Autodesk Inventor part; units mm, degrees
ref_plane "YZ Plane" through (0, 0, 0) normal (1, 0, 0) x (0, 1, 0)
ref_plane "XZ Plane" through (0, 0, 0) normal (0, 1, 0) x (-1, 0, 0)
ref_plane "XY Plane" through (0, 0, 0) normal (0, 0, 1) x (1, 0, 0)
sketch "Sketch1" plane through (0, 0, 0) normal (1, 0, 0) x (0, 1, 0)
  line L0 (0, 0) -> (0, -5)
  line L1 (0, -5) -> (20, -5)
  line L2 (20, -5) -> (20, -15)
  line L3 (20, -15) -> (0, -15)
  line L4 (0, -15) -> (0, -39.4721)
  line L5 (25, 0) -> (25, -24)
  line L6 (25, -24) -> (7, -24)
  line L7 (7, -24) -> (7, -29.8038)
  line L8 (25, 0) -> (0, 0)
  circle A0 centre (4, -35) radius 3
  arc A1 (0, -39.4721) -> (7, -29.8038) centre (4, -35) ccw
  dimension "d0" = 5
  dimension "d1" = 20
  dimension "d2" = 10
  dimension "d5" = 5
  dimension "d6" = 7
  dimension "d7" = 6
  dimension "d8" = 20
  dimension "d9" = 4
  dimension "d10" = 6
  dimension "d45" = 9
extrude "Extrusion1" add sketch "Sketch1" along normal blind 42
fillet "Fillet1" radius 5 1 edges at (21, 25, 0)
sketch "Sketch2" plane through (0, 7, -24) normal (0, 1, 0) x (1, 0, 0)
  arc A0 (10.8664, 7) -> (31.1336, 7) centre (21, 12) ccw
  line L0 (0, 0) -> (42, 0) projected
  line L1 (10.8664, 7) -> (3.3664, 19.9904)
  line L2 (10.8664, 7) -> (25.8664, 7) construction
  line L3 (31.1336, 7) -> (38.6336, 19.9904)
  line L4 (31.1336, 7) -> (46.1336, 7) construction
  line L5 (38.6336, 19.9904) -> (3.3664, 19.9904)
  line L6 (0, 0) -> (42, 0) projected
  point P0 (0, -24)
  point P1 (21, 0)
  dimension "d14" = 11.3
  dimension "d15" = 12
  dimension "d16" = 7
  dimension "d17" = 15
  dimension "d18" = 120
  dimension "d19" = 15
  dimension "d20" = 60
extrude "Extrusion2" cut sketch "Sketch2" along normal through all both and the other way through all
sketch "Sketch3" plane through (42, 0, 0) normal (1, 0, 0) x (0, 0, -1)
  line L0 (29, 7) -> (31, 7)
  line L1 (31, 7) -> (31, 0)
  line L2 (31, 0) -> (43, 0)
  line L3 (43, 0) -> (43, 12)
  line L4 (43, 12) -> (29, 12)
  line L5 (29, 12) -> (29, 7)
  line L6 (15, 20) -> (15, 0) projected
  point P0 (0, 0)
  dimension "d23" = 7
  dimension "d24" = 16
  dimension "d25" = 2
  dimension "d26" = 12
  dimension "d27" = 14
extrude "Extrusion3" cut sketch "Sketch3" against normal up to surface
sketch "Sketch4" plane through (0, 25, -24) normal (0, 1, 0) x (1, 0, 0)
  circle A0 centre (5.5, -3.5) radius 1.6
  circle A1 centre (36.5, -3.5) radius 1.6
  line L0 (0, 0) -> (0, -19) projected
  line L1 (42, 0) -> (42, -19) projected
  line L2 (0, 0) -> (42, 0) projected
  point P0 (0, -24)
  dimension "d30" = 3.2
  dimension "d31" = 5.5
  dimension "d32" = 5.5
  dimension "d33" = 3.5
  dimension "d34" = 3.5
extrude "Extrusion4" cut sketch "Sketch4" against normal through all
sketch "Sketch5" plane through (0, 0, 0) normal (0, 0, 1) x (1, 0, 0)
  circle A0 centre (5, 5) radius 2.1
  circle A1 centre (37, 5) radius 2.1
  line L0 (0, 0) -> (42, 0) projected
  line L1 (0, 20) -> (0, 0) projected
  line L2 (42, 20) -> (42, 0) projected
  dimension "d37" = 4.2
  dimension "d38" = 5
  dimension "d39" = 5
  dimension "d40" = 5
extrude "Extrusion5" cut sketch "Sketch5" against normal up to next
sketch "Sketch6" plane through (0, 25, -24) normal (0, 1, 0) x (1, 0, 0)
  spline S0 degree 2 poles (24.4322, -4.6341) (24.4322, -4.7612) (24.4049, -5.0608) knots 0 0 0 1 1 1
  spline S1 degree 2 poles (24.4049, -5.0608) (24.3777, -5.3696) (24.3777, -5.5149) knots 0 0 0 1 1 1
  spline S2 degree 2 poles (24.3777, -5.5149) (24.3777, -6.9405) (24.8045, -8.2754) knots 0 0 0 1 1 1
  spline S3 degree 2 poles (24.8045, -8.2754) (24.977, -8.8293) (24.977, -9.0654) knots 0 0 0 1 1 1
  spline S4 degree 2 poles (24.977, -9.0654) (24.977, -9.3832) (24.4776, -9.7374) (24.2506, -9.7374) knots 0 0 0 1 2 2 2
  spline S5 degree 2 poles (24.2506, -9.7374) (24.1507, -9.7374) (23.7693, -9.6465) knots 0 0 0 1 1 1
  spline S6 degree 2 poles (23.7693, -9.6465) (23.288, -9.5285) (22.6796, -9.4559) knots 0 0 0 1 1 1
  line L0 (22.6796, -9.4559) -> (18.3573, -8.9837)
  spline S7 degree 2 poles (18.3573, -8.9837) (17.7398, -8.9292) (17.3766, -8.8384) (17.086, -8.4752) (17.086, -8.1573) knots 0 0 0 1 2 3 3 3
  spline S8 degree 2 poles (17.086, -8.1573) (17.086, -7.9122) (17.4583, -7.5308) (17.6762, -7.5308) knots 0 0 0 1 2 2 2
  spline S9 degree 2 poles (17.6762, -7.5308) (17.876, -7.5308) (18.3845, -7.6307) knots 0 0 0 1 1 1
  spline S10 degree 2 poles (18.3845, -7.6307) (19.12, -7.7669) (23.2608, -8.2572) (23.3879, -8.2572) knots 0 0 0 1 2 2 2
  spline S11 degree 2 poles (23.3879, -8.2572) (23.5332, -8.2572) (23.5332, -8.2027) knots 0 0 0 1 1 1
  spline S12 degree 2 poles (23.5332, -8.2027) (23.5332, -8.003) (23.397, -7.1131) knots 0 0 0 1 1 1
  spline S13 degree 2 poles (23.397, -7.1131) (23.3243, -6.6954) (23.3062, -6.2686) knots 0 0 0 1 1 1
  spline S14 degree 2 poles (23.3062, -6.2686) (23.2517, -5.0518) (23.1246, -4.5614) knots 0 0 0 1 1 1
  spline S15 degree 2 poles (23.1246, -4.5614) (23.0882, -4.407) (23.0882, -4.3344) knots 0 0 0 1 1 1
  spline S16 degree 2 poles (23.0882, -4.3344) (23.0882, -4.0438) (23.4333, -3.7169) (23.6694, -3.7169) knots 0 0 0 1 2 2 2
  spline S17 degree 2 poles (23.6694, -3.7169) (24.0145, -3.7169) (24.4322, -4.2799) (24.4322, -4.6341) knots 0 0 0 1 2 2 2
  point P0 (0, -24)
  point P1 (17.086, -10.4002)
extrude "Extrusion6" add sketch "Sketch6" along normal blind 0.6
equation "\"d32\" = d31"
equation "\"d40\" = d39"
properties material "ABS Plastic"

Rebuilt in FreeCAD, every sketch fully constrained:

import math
import FreeCAD as App
import Part
import Sketcher
Q = App.Units.Quantity


def edges_at(feature, points):
    """Names of the edges that pass closest to the given points."""
    edges = feature.Shape.Edges
    near = lambda p: min(range(len(edges)), key=lambda i: edges[i].distToShape(Part.Vertex(*p))[0])
    return sorted({f"Edge{near(p) + 1}" for p in points})


def add_polygon(sketch, points):
    """Adds a closed chain of lines whose ends are joined by coincident constraints."""
    first, n = sketch.GeometryCount, len(points)
    for a, b in zip(points, points[1:] + points[:1]):
        sketch.addGeometry(Part.LineSegment(App.Vector(*a, 0), App.Vector(*b, 0)), False)
    for i in range(n):
        sketch.addConstraint(Sketcher.Constraint("Coincident", first + i, 2, first + (i + 1) % n, 1))

doc = App.newDocument("Part")
body = doc.addObject("PartDesign::Body", "Body")

sketch1 = body.newObject("Sketcher::SketchObject", "Sketch")
sketch1.AttachmentSupport = (doc.getObject("YZ_Plane"), [""])
sketch1.MapMode = "FlatFace"
sketch1.addGeometry([
    Part.LineSegment(App.Vector(25, 0, 0), App.Vector(0, 0, 0)),
    Part.LineSegment(App.Vector(0, 0, 0), App.Vector(0, -5, 0)),
    Part.LineSegment(App.Vector(0, -5, 0), App.Vector(20, -5, 0)),
    Part.LineSegment(App.Vector(20, -5, 0), App.Vector(20, -15, 0)),
    Part.LineSegment(App.Vector(20, -15, 0), App.Vector(0, -15, 0)),
    Part.LineSegment(App.Vector(0, -15, 0), App.Vector(0, -39.5, 0)),
    Part.ArcOfCircle(Part.Circle(App.Vector(4, -35, 0), App.Vector(0, 0, 1), 6), math.radians(-132), math.radians(60)),
    Part.LineSegment(App.Vector(7, -29.8, 0), App.Vector(7, -24, 0)),
    Part.LineSegment(App.Vector(7, -24, 0), App.Vector(25, -24, 0)),
    Part.LineSegment(App.Vector(25, -24, 0), App.Vector(25, 0, 0)),
    Part.Circle(App.Vector(4, -35, 0), App.Vector(0, 0, 1), 3),
], False)
sketch1.addConstraint([
    Sketcher.Constraint("Coincident", 0, 2, 1, 1),
    Sketcher.Constraint("Coincident", 1, 2, 2, 1),
    Sketcher.Constraint("Coincident", 2, 2, 3, 1),
    Sketcher.Constraint("Coincident", 3, 2, 4, 1),
    Sketcher.Constraint("Coincident", 4, 2, 5, 1),
    Sketcher.Constraint("Coincident", 5, 2, 6, 1),
    Sketcher.Constraint("Coincident", 6, 2, 7, 1),
    Sketcher.Constraint("Coincident", 7, 2, 8, 1),
    Sketcher.Constraint("Coincident", 8, 2, 9, 1),
    Sketcher.Constraint("Coincident", 9, 2, 0, 1),
    Sketcher.Constraint("Horizontal", 0),
    Sketcher.Constraint("Vertical", 1),
    Sketcher.Constraint("Horizontal", 2),
    Sketcher.Constraint("Vertical", 3),
    Sketcher.Constraint("Horizontal", 4),
    Sketcher.Constraint("Vertical", 5),
    Sketcher.Constraint("Vertical", 7),
    Sketcher.Constraint("Horizontal", 8),
    Sketcher.Constraint("Vertical", 9),
    Sketcher.Constraint("Coincident", 0, 2, -1, 1),
    Sketcher.Constraint("Coincident", 10, 3, 6, 3),
    Sketcher.Constraint("PointOnObject", 4, 2, -2),
    Sketcher.Constraint("Diameter", 10, Q("6 mm")),
    Sketcher.Constraint("Radius", 6, Q("6 mm")),
    Sketcher.Constraint("DistanceX", 2, 1, 2, 2, Q("20 mm")),
    Sketcher.Constraint("DistanceY", 1, 2, 1, 1, Q("5 mm")),
    Sketcher.Constraint("DistanceY", 3, 2, 3, 1, Q("10 mm")),
    Sketcher.Constraint("DistanceX", -1, 1, 6, 3, Q("4 mm")),
    Sketcher.Constraint("DistanceX", -1, 1, 6, 2, Q("7 mm")),
    Sketcher.Constraint("DistanceY", 6, 3, 3, 2, Q("20 mm")),
    Sketcher.Constraint("DistanceY", 7, 2, 4, 2, Q("9 mm")),
    Sketcher.Constraint("DistanceX", 3, 2, 8, 2, Q("5 mm")),
])
pad1 = body.newObject("PartDesign::Pad", "Pad")
pad1.Profile = sketch1
pad1.Length = 42
doc.recompute()

fillet = body.newObject("PartDesign::Fillet", "Fillet")
fillet.Base = (pad1, edges_at(pad1, [(21, 25, 0)]))
fillet.Radius = 5

sketch2 = body.newObject("Sketcher::SketchObject", "Sketch001")
sketch2.AttachmentSupport = (doc.getObject("XZ_Plane"), [""])
sketch2.MapMode = "FlatFace"
sketch2.AttachmentOffset = App.Placement(App.Vector(0, 0, -7), App.Rotation())
sketch2.addGeometry([
    Part.LineSegment(App.Vector(3, -44, 0), App.Vector(11, -31, 0)),
    Part.ArcOfCircle(Part.Circle(App.Vector(21, -36, 0), App.Vector(0, 0, 1), 11), math.radians(26), math.radians(154)),
    Part.LineSegment(App.Vector(31, -31, 0), App.Vector(39, -44, 0)),
    Part.LineSegment(App.Vector(39, -44, 0), App.Vector(3, -44, 0)),
], False)
sketch2.addConstraint([
    Sketcher.Constraint("Coincident", 0, 2, 1, 2),
    Sketcher.Constraint("Coincident", 1, 1, 2, 1),
    Sketcher.Constraint("Coincident", 2, 2, 3, 1),
    Sketcher.Constraint("Coincident", 3, 2, 0, 1),
    Sketcher.Constraint("Horizontal", 3),
    Sketcher.Constraint("Horizontal", 0, 2, 1, 1),
    Sketcher.Constraint("Equal", 0, 2),
    Sketcher.Constraint("Radius", 1, Q("11.3 mm")),
    Sketcher.Constraint("Angle", 0, Q("60 deg")),
    Sketcher.Constraint("Distance", 0, Q("15 mm")),
    Sketcher.Constraint("DistanceX", -1, 1, 1, 3, Q("21 mm")),
    Sketcher.Constraint("DistanceY", 1, 3, -1, 1, Q("36 mm")),
    Sketcher.Constraint("DistanceY", 0, 2, -1, 1, Q("31 mm")),
])
pocket1 = body.newObject("PartDesign::Pocket", "Pocket")
pocket1.Profile = sketch2
pocket1.Type = "ThroughAll"
pocket1.Midplane = True

sketch3 = body.newObject("Sketcher::SketchObject", "Sketch002")
sketch3.AttachmentSupport = (doc.getObject("YZ_Plane"), [""])
sketch3.MapMode = "FlatFace"
sketch3.AttachmentOffset = App.Placement(App.Vector(0, 0, 42), App.Rotation())
add_polygon(sketch3, [(12, -29), (7, -29), (7, -31), (0, -31), (0, -43), (12, -43)])
sketch3.addConstraint([
    Sketcher.Constraint("Horizontal", 0),
    Sketcher.Constraint("Vertical", 1),
    Sketcher.Constraint("Horizontal", 2),
    Sketcher.Constraint("Vertical", 3),
    Sketcher.Constraint("Horizontal", 4),
    Sketcher.Constraint("Vertical", 5),
    Sketcher.Constraint("PointOnObject", 2, 2, -2),
    Sketcher.Constraint("Equal", 4, 3),
    Sketcher.Constraint("DistanceX", 2, 2, 2, 1, Q("7 mm")),
    Sketcher.Constraint("DistanceX", 4, 1, 4, 2, Q("12 mm")),
    Sketcher.Constraint("DistanceY", 1, 2, 1, 1, Q("2 mm")),
    Sketcher.Constraint("DistanceY", 0, 2, -1, 1, Q("29 mm")),
])
pocket2 = body.newObject("PartDesign::Pocket", "Pocket001")
pocket2.Profile = sketch3
pocket2.Length = 11.5503

sketch4 = body.newObject("Sketcher::SketchObject", "Sketch003")
sketch4.AttachmentSupport = (doc.getObject("XZ_Plane"), [""])
sketch4.MapMode = "FlatFace"
sketch4.AttachmentOffset = App.Placement(App.Vector(0, 0, -25), App.Rotation())
sketch4.addGeometry([
    Part.Circle(App.Vector(5.5, -20.5, 0), App.Vector(0, 0, 1), 1.6),
    Part.Circle(App.Vector(36.5, -20.5, 0), App.Vector(0, 0, 1), 1.6),
], False)
sketch4.addConstraint([
    Sketcher.Constraint("Equal", 0, 1),
    Sketcher.Constraint("Horizontal", 0, 3, 1, 3),
    Sketcher.Constraint("Diameter", 0, Q("3.2 mm")),
    Sketcher.Constraint("DistanceX", -1, 1, 0, 3, Q("5.5 mm")),
    Sketcher.Constraint("DistanceX", 0, 3, 1, 3, Q("31 mm")),
    Sketcher.Constraint("DistanceY", 0, 3, -1, 1, Q("20.5 mm")),
])
pocket3 = body.newObject("PartDesign::Pocket", "Pocket002")
pocket3.Profile = sketch4
pocket3.Type = "ThroughAll"
pocket3.Reversed = True

sketch5 = body.newObject("Sketcher::SketchObject", "Sketch004")
sketch5.AttachmentSupport = (doc.getObject("XY_Plane"), [""])
sketch5.MapMode = "FlatFace"
sketch5.addGeometry([
    Part.Circle(App.Vector(5, 5, 0), App.Vector(0, 0, 1), 2.1),
    Part.Circle(App.Vector(37, 5, 0), App.Vector(0, 0, 1), 2.1),
], False)
sketch5.addConstraint([
    Sketcher.Constraint("Equal", 0, 1),
    Sketcher.Constraint("Horizontal", 0, 3, 1, 3),
    Sketcher.Constraint("Diameter", 0, Q("4.2 mm")),
    Sketcher.Constraint("DistanceX", -1, 1, 0, 3, Q("5 mm")),
    Sketcher.Constraint("DistanceY", -1, 1, 0, 3, Q("5 mm")),
    Sketcher.Constraint("DistanceX", -1, 1, 1, 3, Q("37 mm")),
])
pocket4 = body.newObject("PartDesign::Pocket", "Pocket003")
pocket4.Profile = sketch5
pocket4.Type = "UpToFirst"

sketch6 = body.newObject("Sketcher::SketchObject", "Sketch005")
sketch6.AttachmentSupport = (doc.getObject("XZ_Plane"), [""])
sketch6.MapMode = "FlatFace"
sketch6.AttachmentOffset = App.Placement(App.Vector(0, 0, -25), App.Rotation())
sketch6.addGeometry([
    Part.BSplineCurve([App.Vector(24.4322, -19.3659, 0), App.Vector(24.4322, -19.2388, 0), App.Vector(24.4049, -18.9392, 0)], [3, 3], [0, 1], False, 2, [1, 1, 1], False),
    Part.BSplineCurve([App.Vector(23.6694, -20.2831, 0), App.Vector(24.0145, -20.2831, 0), App.Vector(24.4322, -19.7201, 0), App.Vector(24.4322, -19.3659, 0)], [3, 1, 3], [0, 1, 2], False, 2, [1, 1, 1, 1], False),
    Part.BSplineCurve([App.Vector(23.0882, -19.6656, 0), App.Vector(23.0882, -19.9562, 0), App.Vector(23.4333, -20.2831, 0), App.Vector(23.6694, -20.2831, 0)], [3, 1, 3], [0, 1, 2], False, 2, [1, 1, 1, 1], False),
    Part.BSplineCurve([App.Vector(23.1246, -19.4386, 0), App.Vector(23.0882, -19.593, 0), App.Vector(23.0882, -19.6656, 0)], [3, 3], [0, 1], False, 2, [1, 1, 1], False),
    Part.BSplineCurve([App.Vector(23.3062, -17.7314, 0), App.Vector(23.2517, -18.9482, 0), App.Vector(23.1246, -19.4386, 0)], [3, 3], [0, 1], False, 2, [1, 1, 1], False),
    Part.BSplineCurve([App.Vector(23.397, -16.8869, 0), App.Vector(23.3243, -17.3046, 0), App.Vector(23.3062, -17.7314, 0)], [3, 3], [0, 1], False, 2, [1, 1, 1], False),
    Part.BSplineCurve([App.Vector(23.5332, -15.7973, 0), App.Vector(23.5332, -15.997, 0), App.Vector(23.397, -16.8869, 0)], [3, 3], [0, 1], False, 2, [1, 1, 1], False),
    Part.BSplineCurve([App.Vector(23.3879, -15.7428, 0), App.Vector(23.5332, -15.7428, 0), App.Vector(23.5332, -15.7973, 0)], [3, 3], [0, 1], False, 2, [1, 1, 1], False),
    Part.BSplineCurve([App.Vector(18.3845, -16.3693, 0), App.Vector(19.12, -16.2331, 0), App.Vector(23.2608, -15.7428, 0), App.Vector(23.3879, -15.7428, 0)], [3, 1, 3], [0, 1, 2], False, 2, [1, 1, 1, 1], False),
    Part.BSplineCurve([App.Vector(17.6762, -16.4692, 0), App.Vector(17.876, -16.4692, 0), App.Vector(18.3845, -16.3693, 0)], [3, 3], [0, 1], False, 2, [1, 1, 1], False),
    Part.BSplineCurve([App.Vector(17.086, -15.8427, 0), App.Vector(17.086, -16.0878, 0), App.Vector(17.4583, -16.4692, 0), App.Vector(17.6762, -16.4692, 0)], [3, 1, 3], [0, 1, 2], False, 2, [1, 1, 1, 1], False),
    Part.BSplineCurve([App.Vector(18.3573, -15.0163, 0), App.Vector(17.7398, -15.0708, 0), App.Vector(17.3766, -15.1616, 0), App.Vector(17.086, -15.5248, 0), App.Vector(17.086, -15.8427, 0)], [3, 1, 1, 3], [0, 1, 2, 3], False, 2, [1, 1, 1, 1, 1], False),
    Part.LineSegment(App.Vector(18.3573, -15.0163, 0), App.Vector(22.6796, -14.5441, 0)),
    Part.BSplineCurve([App.Vector(23.7693, -14.3535, 0), App.Vector(23.288, -14.4715, 0), App.Vector(22.6796, -14.5441, 0)], [3, 3], [0, 1], False, 2, [1, 1, 1], False),
    Part.BSplineCurve([App.Vector(24.2506, -14.2626, 0), App.Vector(24.1507, -14.2626, 0), App.Vector(23.7693, -14.3535, 0)], [3, 3], [0, 1], False, 2, [1, 1, 1], False),
    Part.BSplineCurve([App.Vector(24.977, -14.9346, 0), App.Vector(24.977, -14.6168, 0), App.Vector(24.4776, -14.2626, 0), App.Vector(24.2506, -14.2626, 0)], [3, 1, 3], [0, 1, 2], False, 2, [1, 1, 1, 1], False),
    Part.BSplineCurve([App.Vector(24.8045, -15.7246, 0), App.Vector(24.977, -15.1707, 0), App.Vector(24.977, -14.9346, 0)], [3, 3], [0, 1], False, 2, [1, 1, 1], False),
    Part.BSplineCurve([App.Vector(24.3777, -18.4851, 0), App.Vector(24.3777, -17.0595, 0), App.Vector(24.8045, -15.7246, 0)], [3, 3], [0, 1], False, 2, [1, 1, 1], False),
    Part.BSplineCurve([App.Vector(24.4049, -18.9392, 0), App.Vector(24.3777, -18.6304, 0), App.Vector(24.3777, -18.4851, 0)], [3, 3], [0, 1], False, 2, [1, 1, 1], False),
], False)
sketch6.addConstraint([
    Sketcher.Constraint("Block", 0),
    Sketcher.Constraint("Block", 1),
    Sketcher.Constraint("Block", 2),
    Sketcher.Constraint("Block", 3),
    Sketcher.Constraint("Block", 4),
    Sketcher.Constraint("Block", 5),
    Sketcher.Constraint("Block", 6),
    Sketcher.Constraint("Block", 7),
    Sketcher.Constraint("Block", 8),
    Sketcher.Constraint("Block", 9),
    Sketcher.Constraint("Block", 10),
    Sketcher.Constraint("Block", 11),
    Sketcher.Constraint("Block", 13),
    Sketcher.Constraint("Block", 14),
    Sketcher.Constraint("Block", 15),
    Sketcher.Constraint("Block", 16),
    Sketcher.Constraint("Block", 17),
    Sketcher.Constraint("Block", 18),
    Sketcher.Constraint("Coincident", 11, 1, 12, 1),
    Sketcher.Constraint("Coincident", 12, 2, 13, 2),
])
pad2 = body.newObject("PartDesign::Pad", "Pad001")
pad2.Profile = sketch6
pad2.Length = 0.6
pad2.Reversed = True

doc.recompute()
